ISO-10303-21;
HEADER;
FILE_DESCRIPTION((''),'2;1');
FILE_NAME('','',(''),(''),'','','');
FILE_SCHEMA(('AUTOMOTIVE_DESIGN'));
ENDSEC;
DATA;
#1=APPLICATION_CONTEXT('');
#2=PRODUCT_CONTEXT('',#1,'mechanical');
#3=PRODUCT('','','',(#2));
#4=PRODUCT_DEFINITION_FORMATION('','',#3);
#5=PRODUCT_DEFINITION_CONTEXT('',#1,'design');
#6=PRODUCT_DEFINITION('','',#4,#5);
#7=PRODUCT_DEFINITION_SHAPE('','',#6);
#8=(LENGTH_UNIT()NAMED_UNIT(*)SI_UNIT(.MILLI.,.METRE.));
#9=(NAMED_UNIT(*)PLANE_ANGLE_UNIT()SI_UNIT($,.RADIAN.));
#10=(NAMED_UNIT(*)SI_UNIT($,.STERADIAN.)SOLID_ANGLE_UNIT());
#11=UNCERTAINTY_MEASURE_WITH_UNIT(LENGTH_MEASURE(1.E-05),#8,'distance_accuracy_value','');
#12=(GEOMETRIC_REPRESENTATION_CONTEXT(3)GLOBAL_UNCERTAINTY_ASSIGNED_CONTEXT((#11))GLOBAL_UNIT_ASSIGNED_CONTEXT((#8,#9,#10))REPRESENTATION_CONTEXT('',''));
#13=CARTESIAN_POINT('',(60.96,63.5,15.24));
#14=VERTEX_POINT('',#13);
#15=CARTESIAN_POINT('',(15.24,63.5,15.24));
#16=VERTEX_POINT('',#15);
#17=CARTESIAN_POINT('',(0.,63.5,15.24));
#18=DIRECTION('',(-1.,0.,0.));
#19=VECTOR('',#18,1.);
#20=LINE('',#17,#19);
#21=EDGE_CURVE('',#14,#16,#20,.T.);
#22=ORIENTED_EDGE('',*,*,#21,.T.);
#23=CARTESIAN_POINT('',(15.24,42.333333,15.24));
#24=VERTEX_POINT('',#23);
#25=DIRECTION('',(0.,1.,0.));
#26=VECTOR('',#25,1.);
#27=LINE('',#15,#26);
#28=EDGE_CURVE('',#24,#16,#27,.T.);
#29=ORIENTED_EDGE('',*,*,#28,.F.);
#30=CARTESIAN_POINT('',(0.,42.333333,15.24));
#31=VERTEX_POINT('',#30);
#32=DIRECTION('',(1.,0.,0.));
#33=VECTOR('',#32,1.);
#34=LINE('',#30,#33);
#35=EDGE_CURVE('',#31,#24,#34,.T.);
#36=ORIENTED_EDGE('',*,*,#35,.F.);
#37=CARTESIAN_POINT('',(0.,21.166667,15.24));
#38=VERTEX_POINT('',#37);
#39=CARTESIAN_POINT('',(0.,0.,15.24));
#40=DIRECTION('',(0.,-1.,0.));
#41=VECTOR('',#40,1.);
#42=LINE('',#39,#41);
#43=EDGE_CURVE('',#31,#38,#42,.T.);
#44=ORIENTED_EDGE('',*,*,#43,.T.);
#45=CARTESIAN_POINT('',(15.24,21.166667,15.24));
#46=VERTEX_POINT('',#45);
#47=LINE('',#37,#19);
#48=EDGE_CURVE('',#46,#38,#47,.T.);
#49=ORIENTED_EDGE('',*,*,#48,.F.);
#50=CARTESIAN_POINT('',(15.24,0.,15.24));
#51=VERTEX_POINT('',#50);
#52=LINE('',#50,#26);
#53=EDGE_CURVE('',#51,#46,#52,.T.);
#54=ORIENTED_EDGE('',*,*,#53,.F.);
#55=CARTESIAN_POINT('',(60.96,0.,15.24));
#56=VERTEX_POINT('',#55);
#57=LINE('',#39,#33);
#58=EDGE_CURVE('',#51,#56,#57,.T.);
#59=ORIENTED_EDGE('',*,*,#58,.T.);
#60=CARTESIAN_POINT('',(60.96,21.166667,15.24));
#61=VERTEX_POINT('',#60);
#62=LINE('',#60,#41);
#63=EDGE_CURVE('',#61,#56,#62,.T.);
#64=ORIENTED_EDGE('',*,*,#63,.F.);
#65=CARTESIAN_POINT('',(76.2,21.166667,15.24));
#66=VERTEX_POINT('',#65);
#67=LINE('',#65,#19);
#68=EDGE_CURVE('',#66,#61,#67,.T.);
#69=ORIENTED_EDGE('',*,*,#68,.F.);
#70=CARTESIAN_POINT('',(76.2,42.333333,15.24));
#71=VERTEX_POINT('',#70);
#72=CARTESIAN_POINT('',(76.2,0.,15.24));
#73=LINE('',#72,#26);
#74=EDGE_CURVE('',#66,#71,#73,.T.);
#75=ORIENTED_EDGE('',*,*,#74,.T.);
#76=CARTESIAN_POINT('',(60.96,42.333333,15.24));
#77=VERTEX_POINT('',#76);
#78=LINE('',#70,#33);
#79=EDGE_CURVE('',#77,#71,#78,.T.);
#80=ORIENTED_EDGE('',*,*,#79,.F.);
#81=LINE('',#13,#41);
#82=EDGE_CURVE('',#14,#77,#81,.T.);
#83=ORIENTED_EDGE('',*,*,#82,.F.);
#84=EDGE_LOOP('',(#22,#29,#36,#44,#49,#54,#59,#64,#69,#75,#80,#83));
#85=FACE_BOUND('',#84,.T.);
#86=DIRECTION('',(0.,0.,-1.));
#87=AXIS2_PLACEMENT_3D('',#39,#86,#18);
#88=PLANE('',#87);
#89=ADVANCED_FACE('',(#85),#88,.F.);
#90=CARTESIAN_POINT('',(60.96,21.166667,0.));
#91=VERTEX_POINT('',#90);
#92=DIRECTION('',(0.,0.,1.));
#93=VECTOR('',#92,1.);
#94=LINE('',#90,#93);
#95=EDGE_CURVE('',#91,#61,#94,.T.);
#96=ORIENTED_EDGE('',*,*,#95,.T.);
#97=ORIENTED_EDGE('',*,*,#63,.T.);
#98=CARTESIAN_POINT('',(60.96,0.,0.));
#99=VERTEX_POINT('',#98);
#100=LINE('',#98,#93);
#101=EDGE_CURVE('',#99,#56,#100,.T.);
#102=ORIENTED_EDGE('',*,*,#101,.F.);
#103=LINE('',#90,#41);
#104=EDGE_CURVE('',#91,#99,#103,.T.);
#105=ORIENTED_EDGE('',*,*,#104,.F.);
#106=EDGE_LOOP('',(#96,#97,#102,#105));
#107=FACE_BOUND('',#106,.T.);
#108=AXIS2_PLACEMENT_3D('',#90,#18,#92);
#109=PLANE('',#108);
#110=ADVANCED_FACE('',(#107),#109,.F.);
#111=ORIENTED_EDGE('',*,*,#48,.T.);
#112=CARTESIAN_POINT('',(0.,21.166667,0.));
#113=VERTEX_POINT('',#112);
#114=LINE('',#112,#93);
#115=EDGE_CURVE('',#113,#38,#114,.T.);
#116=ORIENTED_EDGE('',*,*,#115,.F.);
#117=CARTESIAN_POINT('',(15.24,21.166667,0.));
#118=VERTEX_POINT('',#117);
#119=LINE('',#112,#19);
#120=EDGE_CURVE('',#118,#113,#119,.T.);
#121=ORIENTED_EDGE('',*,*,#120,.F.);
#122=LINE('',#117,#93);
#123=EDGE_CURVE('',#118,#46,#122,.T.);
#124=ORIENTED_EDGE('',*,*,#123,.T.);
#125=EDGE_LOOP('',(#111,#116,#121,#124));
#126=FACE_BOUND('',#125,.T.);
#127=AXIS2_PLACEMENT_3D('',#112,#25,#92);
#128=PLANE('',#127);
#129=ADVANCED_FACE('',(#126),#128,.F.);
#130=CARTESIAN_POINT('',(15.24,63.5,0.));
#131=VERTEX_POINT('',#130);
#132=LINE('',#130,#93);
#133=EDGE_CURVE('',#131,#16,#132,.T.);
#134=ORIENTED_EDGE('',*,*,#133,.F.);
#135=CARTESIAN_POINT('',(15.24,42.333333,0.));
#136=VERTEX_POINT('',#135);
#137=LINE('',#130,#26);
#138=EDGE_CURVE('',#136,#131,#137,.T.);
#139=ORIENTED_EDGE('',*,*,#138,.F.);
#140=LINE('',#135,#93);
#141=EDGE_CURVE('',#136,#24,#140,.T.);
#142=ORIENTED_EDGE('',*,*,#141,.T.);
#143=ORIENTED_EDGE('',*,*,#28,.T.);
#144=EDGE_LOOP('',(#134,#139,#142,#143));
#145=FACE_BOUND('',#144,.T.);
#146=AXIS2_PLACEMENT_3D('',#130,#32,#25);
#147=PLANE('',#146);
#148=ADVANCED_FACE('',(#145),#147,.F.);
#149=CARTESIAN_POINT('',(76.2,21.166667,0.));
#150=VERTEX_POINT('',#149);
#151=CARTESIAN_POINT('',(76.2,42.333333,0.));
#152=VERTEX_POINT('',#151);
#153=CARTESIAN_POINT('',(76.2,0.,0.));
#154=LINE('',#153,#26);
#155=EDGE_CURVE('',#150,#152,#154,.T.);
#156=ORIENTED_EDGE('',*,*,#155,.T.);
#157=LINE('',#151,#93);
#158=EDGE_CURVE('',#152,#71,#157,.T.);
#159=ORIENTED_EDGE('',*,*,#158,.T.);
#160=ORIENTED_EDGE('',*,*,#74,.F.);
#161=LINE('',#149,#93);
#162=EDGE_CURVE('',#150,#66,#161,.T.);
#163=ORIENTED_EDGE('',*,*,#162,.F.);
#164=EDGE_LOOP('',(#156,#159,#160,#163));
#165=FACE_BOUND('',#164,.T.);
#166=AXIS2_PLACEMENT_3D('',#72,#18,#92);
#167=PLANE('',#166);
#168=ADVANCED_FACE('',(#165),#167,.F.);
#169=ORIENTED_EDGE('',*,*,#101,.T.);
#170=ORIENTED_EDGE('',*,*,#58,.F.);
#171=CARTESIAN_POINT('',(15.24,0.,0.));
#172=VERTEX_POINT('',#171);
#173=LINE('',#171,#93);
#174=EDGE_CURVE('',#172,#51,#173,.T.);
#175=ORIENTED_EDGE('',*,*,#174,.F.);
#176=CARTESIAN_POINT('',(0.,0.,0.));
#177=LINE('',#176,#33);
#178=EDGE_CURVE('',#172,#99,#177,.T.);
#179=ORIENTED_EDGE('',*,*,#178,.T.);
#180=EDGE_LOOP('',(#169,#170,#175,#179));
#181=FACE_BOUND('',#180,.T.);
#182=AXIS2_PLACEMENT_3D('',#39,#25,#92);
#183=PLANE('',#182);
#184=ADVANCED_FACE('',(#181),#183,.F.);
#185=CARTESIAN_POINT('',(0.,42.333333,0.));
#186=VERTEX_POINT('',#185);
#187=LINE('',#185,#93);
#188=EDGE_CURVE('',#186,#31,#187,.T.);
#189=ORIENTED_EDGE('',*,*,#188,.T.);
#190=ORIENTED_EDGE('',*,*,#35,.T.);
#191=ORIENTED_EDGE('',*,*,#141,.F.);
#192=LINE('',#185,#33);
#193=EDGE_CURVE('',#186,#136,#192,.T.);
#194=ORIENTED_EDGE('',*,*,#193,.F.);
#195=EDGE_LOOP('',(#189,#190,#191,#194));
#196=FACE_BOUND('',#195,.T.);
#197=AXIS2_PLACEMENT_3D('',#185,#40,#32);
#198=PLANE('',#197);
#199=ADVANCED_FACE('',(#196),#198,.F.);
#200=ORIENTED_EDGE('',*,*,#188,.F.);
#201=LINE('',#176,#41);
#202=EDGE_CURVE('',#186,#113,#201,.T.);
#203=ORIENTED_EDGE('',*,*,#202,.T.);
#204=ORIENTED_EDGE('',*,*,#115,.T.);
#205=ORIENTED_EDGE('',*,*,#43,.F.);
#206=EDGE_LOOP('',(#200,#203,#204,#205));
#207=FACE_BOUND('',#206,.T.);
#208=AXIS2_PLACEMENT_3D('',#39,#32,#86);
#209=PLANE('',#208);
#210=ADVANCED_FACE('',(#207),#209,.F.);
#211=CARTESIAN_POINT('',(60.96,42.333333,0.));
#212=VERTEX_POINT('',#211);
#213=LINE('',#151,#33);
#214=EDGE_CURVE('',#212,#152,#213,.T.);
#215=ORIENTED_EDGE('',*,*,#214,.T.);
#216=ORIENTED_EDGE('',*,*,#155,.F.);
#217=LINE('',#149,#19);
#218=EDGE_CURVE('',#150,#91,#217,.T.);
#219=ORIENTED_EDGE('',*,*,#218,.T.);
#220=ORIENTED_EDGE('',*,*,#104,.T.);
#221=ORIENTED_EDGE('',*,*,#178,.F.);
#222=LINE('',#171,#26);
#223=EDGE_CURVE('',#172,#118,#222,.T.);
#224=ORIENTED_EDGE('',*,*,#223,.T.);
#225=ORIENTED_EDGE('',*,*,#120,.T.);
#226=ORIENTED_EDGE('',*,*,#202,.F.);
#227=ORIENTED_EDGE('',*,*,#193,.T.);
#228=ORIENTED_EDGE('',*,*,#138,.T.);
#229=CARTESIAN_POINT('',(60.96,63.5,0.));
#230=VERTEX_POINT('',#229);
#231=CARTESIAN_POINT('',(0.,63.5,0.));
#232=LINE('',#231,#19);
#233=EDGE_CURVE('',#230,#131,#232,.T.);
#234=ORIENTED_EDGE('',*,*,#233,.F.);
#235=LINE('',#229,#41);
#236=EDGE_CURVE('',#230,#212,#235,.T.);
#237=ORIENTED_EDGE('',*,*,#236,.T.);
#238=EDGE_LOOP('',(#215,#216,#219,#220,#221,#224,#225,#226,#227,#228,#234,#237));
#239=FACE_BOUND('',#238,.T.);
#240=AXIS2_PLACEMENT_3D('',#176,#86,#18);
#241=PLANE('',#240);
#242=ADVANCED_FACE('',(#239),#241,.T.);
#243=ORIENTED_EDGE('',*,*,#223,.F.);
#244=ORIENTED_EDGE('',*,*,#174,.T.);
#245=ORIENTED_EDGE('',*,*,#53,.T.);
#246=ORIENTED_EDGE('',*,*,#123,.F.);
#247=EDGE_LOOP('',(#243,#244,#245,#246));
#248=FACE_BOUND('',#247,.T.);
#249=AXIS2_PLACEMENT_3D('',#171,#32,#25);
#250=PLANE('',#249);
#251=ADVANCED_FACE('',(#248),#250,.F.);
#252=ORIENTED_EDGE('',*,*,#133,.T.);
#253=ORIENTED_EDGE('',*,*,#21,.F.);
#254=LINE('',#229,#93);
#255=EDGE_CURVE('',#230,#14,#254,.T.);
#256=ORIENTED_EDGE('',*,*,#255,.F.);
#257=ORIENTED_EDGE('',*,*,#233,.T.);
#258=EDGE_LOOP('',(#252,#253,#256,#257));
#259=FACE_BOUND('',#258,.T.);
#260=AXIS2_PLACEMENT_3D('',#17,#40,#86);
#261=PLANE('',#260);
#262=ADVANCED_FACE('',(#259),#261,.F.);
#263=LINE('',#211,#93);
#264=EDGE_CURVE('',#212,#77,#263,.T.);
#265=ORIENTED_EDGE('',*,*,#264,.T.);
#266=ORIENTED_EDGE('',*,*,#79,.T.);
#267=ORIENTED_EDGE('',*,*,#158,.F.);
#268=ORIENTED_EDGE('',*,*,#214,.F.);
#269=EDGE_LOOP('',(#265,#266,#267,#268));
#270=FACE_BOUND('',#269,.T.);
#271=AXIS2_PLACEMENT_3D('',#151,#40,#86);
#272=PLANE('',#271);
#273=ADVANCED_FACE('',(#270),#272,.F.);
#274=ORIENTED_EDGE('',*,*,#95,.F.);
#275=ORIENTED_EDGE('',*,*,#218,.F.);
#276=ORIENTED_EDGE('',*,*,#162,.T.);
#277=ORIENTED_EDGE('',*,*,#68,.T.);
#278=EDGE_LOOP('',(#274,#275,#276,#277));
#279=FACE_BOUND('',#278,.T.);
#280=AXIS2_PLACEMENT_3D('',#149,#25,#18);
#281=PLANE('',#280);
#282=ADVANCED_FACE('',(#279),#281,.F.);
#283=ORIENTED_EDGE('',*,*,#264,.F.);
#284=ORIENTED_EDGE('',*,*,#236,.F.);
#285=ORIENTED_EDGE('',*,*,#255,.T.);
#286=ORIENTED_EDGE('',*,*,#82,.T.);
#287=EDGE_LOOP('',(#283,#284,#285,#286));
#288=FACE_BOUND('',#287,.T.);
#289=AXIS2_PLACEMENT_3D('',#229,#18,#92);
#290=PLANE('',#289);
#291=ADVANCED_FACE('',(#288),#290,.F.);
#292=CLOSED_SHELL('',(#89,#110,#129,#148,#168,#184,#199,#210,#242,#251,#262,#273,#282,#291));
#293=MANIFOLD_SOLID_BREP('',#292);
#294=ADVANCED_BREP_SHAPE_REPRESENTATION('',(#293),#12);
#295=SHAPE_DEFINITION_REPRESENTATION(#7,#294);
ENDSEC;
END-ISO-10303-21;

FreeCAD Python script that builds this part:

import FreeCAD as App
import Part
import Sketcher
Q = App.Units.Quantity

doc = App.newDocument("Part")
body = doc.addObject("PartDesign::Body", "Body")

# Sketch on XY plane
sketch1 = body.newObject("Sketcher::SketchObject", "Sketch")
sketch1.AttachmentSupport = (doc.getObject("XY_Plane"), [""])
sketch1.MapMode = "FlatFace"
sketch1.addGeometry(Part.LineSegment(App.Vector(0, 64, 0), App.Vector(0, 0, 0)), False)
sketch1.addGeometry(Part.LineSegment(App.Vector(0, 0, 0), App.Vector(76, 0, 0)), False)
sketch1.addGeometry(Part.LineSegment(App.Vector(76, 0, 0), App.Vector(76, 64, 0)), False)
sketch1.addGeometry(Part.LineSegment(App.Vector(76, 64, 0), App.Vector(0, 64, 0)), False)
sketch1.addConstraint(Sketcher.Constraint("Coincident", 0, 2, 1, 1))
sketch1.addConstraint(Sketcher.Constraint("Coincident", 1, 2, 2, 1))
sketch1.addConstraint(Sketcher.Constraint("Coincident", 2, 2, 3, 1))
sketch1.addConstraint(Sketcher.Constraint("Coincident", 3, 2, 0, 1))
sketch1.addConstraint(Sketcher.Constraint("Vertical", 0))
sketch1.addConstraint(Sketcher.Constraint("Horizontal", 1))
sketch1.addConstraint(Sketcher.Constraint("Vertical", 2))
sketch1.addConstraint(Sketcher.Constraint("Horizontal", 3))
sketch1.addConstraint(Sketcher.Constraint("Coincident", 0, 2, -1, 1))
sketch1.addConstraint(Sketcher.Constraint("DistanceX", 1, 1, 1, 2, Q("3 in")))
sketch1.addConstraint(Sketcher.Constraint("DistanceY", 0, 2, 0, 1, Q("2.5 in")))
pad1 = body.newObject("PartDesign::Pad", "Pad")
pad1.Profile = sketch1
pad1.Length = Q("0.6 in")

# Sketch on XY plane
sketch2 = body.newObject("Sketcher::SketchObject", "Sketch001")
sketch2.AttachmentSupport = (doc.getObject("XY_Plane"), [""])
sketch2.MapMode = "FlatFace"
sketch2.AttachmentOffset = App.Placement(App.Vector(0, 0, 0.6 * 25.4), App.Rotation())
sketch2.addGeometry(Part.LineSegment(App.Vector(0, 64, 0), App.Vector(0, 42, 0)), False)
sketch2.addGeometry(Part.LineSegment(App.Vector(0, 42, 0), App.Vector(15, 42, 0)), False)
sketch2.addGeometry(Part.LineSegment(App.Vector(15, 42, 0), App.Vector(15, 64, 0)), False)
sketch2.addGeometry(Part.LineSegment(App.Vector(15, 64, 0), App.Vector(0, 64, 0)), False)
sketch2.addGeometry(Part.LineSegment(App.Vector(0, 21, 0), App.Vector(0, 0, 0)), False)
sketch2.addGeometry(Part.LineSegment(App.Vector(0, 0, 0), App.Vector(15, 0, 0)), False)
sketch2.addGeometry(Part.LineSegment(App.Vector(15, 0, 0), App.Vector(15, 21, 0)), False)
sketch2.addGeometry(Part.LineSegment(App.Vector(15, 21, 0), App.Vector(0, 21, 0)), False)
sketch2.addGeometry(Part.LineSegment(App.Vector(61, 64, 0), App.Vector(61, 42, 0)), False)
sketch2.addGeometry(Part.LineSegment(App.Vector(61, 42, 0), App.Vector(76, 42, 0)), False)
sketch2.addGeometry(Part.LineSegment(App.Vector(76, 42, 0), App.Vector(76, 64, 0)), False)
sketch2.addGeometry(Part.LineSegment(App.Vector(76, 64, 0), App.Vector(61, 64, 0)), False)
sketch2.addGeometry(Part.LineSegment(App.Vector(61, 21, 0), App.Vector(61, 0, 0)), False)
sketch2.addGeometry(Part.LineSegment(App.Vector(61, 0, 0), App.Vector(76, 0, 0)), False)
sketch2.addGeometry(Part.LineSegment(App.Vector(76, 0, 0), App.Vector(76, 21, 0)), False)
sketch2.addGeometry(Part.LineSegment(App.Vector(76, 21, 0), App.Vector(61, 21, 0)), False)
sketch2.addConstraint(Sketcher.Constraint("Coincident", 0, 2, 1, 1))
sketch2.addConstraint(Sketcher.Constraint("Coincident", 1, 2, 2, 1))
sketch2.addConstraint(Sketcher.Constraint("Coincident", 2, 2, 3, 1))
sketch2.addConstraint(Sketcher.Constraint("Coincident", 3, 2, 0, 1))
sketch2.addConstraint(Sketcher.Constraint("Coincident", 4, 2, 5, 1))
sketch2.addConstraint(Sketcher.Constraint("Coincident", 5, 2, 6, 1))
sketch2.addConstraint(Sketcher.Constraint("Coincident", 6, 2, 7, 1))
sketch2.addConstraint(Sketcher.Constraint("Coincident", 7, 2, 4, 1))
sketch2.addConstraint(Sketcher.Constraint("Coincident", 8, 2, 9, 1))
sketch2.addConstraint(Sketcher.Constraint("Coincident", 9, 2, 10, 1))
sketch2.addConstraint(Sketcher.Constraint("Coincident", 10, 2, 11, 1))
sketch2.addConstraint(Sketcher.Constraint("Coincident", 11, 2, 8, 1))
sketch2.addConstraint(Sketcher.Constraint("Coincident", 12, 2, 13, 1))
sketch2.addConstraint(Sketcher.Constraint("Coincident", 13, 2, 14, 1))
sketch2.addConstraint(Sketcher.Constraint("Coincident", 14, 2, 15, 1))
sketch2.addConstraint(Sketcher.Constraint("Coincident", 15, 2, 12, 1))
sketch2.addConstraint(Sketcher.Constraint("Vertical", 0))
sketch2.addConstraint(Sketcher.Constraint("Horizontal", 1))
sketch2.addConstraint(Sketcher.Constraint("Vertical", 2))
sketch2.addConstraint(Sketcher.Constraint("Horizontal", 3))
sketch2.addConstraint(Sketcher.Constraint("Vertical", 4))
sketch2.addConstraint(Sketcher.Constraint("Horizontal", 5))
sketch2.addConstraint(Sketcher.Constraint("Vertical", 6))
sketch2.addConstraint(Sketcher.Constraint("Horizontal", 7))
sketch2.addConstraint(Sketcher.Constraint("Vertical", 8))
sketch2.addConstraint(Sketcher.Constraint("Horizontal", 9))
sketch2.addConstraint(Sketcher.Constraint("Vertical", 10))
sketch2.addConstraint(Sketcher.Constraint("Horizontal", 11))
sketch2.addConstraint(Sketcher.Constraint("Vertical", 12))
sketch2.addConstraint(Sketcher.Constraint("Horizontal", 13))
sketch2.addConstraint(Sketcher.Constraint("Vertical", 14))
sketch2.addConstraint(Sketcher.Constraint("Horizontal", 15))
sketch2.addConstraint(Sketcher.Constraint("Coincident", 4, 2, -1, 1))
sketch2.addConstraint(Sketcher.Constraint("PointOnObject", 0, 2, -2))
sketch2.addConstraint(Sketcher.Constraint("PointOnObject", 12, 2, -1))
sketch2.addConstraint(Sketcher.Constraint("Horizontal", 1, 2, 8, 2))
sketch2.addConstraint(Sketcher.Constraint("Horizontal", 3, 2, 10, 2))
sketch2.addConstraint(Sketcher.Constraint("Horizontal", 7, 2, 14, 2))
sketch2.addConstraint(Sketcher.Constraint("Vertical", 2, 2, 5, 2))
sketch2.addConstraint(Sketcher.Constraint("Vertical", 11, 2, 12, 2))
sketch2.addConstraint(Sketcher.Constraint("Vertical", 10, 2, 13, 2))
sketch2.addConstraint(Sketcher.Constraint("Equal", 7, 9))
sketch2.addConstraint(Sketcher.Constraint("Equal", 2, 4))
sketch2.addConstraint(Sketcher.Constraint("DistanceX", 1, 1, 1, 2, Q("0.6 in")))
sketch2.addConstraint(Sketcher.Constraint("DistanceX", -1, 1, 9, 2, Q("3 in")))
sketch2.addConstraint(Sketcher.Constraint("DistanceY", -1, 1, 2, 2, Q("2.5 in")))
sketch2.addConstraint(Sketcher.Constraint("DistanceY", 0, 2, 0, 1, Q("21.166667 mm")))
pocket1 = body.newObject("PartDesign::Pocket", "Pocket")
pocket1.Profile = sketch2
pocket1.Length = Q("0.6 in")

doc.recompute()
